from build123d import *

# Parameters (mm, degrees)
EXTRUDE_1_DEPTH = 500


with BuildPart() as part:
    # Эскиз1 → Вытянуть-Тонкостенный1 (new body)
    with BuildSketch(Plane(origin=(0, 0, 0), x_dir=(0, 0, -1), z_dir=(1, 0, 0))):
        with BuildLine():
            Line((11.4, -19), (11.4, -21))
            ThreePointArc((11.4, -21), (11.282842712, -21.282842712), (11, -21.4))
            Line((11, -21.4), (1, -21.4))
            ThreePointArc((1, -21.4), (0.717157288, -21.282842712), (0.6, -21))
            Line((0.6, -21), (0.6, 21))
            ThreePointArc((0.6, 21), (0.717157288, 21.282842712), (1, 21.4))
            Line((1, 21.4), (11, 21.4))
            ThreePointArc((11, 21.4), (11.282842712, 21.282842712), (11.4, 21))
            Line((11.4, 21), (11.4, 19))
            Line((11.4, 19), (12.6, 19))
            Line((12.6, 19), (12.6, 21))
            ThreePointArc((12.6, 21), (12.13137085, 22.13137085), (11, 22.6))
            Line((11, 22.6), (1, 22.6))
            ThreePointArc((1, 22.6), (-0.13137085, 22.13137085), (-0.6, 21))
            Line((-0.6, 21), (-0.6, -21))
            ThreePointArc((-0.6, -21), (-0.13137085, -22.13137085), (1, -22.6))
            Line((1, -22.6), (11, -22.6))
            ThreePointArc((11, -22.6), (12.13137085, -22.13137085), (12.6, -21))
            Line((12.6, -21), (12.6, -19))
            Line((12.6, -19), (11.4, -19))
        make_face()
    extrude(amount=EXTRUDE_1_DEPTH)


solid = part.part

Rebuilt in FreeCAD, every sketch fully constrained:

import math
import FreeCAD as App
import Part
import Sketcher

V = App.Vector
Q = App.Units.Quantity

doc = App.newDocument("Part")
params = doc.addObject("Spreadsheet::Sheet", "Params")
for row, (alias, value) in enumerate([
    ("sketch1_radius", "0.4 mm"),
    ("sketch1_radius2", "1.6 mm"),
    ("sketch1_width", "2 mm"),
    ("sketch1_width2", "42 mm"),
    ("sketch1_height", "10 mm"),
    ("pad1_length", "500 mm"),
], start=1):
    params.set(f"A{row}", alias)
    params.set(f"B{row}", "=" + value)
    params.setAlias(f"B{row}", alias)

body = doc.addObject("PartDesign::Body", "Body")

# Sketch on YZ plane
sketch1 = doc.addObject("Sketcher::SketchObject", "Sketch")
body.addObject(sketch1)
sketch1.AttachmentSupport = (doc.YZ_Plane, [""])
sketch1.MapMode = "FlatFace"
sketch1.addGeometry([
    Part.LineSegment(V(-19, -11.4, 0), V(-21, -11.4, 0)),  # 0
    Part.ArcOfCircle(Part.Circle(V(-21, -11, 0), V(0, 0, 1), 0.4), math.radians(-180), math.radians(-90)),  # 1
    Part.LineSegment(V(-21.4, -11, 0), V(-21.4, -1, 0)),  # 2
    Part.ArcOfCircle(Part.Circle(V(-21, -1, 0), V(0, 0, 1), 0.4), math.radians(90), math.radians(180)),  # 3
    Part.LineSegment(V(-21, -0.6, 0), V(21, -0.6, 0)),  # 4
    Part.ArcOfCircle(Part.Circle(V(21, -1, 0), V(0, 0, 1), 0.4), math.radians(0), math.radians(90)),  # 5
    Part.LineSegment(V(21.4, -1, 0), V(21.4, -11, 0)),  # 6
    Part.ArcOfCircle(Part.Circle(V(21, -11, 0), V(0, 0, 1), 0.4), math.radians(-90), math.radians(0)),  # 7
    Part.LineSegment(V(21, -11.4, 0), V(19, -11.4, 0)),  # 8
    Part.LineSegment(V(19, -11.4, 0), V(19, -12.6, 0)),  # 9
    Part.LineSegment(V(19, -12.6, 0), V(21, -12.6, 0)),  # 10
    Part.ArcOfCircle(Part.Circle(V(21, -11, 0), V(0, 0, 1), 1.6), math.radians(-90), math.radians(0)),  # 11
    Part.LineSegment(V(22.6, -11, 0), V(22.6, -1, 0)),  # 12
    Part.ArcOfCircle(Part.Circle(V(21, -1, 0), V(0, 0, 1), 1.6), math.radians(0), math.radians(90)),  # 13
    Part.LineSegment(V(21, 0.6, 0), V(-21, 0.6, 0)),  # 14
    Part.ArcOfCircle(Part.Circle(V(-21, -1, 0), V(0, 0, 1), 1.6), math.radians(90), math.radians(180)),  # 15
    Part.LineSegment(V(-22.6, -1, 0), V(-22.6, -11, 0)),  # 16
    Part.ArcOfCircle(Part.Circle(V(-21, -11, 0), V(0, 0, 1), 1.6), math.radians(180), math.radians(270)),  # 17
    Part.LineSegment(V(-21, -12.6, 0), V(-19, -12.6, 0)),  # 18
    Part.LineSegment(V(-19, -12.6, 0), V(-19, -11.4, 0)),  # 19
], False)
sketch1.addConstraint([
    Sketcher.Constraint("Tangent", 0, 2, 1, 2),
    Sketcher.Constraint("Tangent", 1, 1, 2, 1),
    Sketcher.Constraint("Tangent", 2, 2, 3, 2),
    Sketcher.Constraint("Tangent", 3, 1, 4, 1),
    Sketcher.Constraint("Tangent", 4, 2, 5, 2),
    Sketcher.Constraint("Tangent", 5, 1, 6, 1),
    Sketcher.Constraint("Tangent", 6, 2, 7, 2),
    Sketcher.Constraint("Tangent", 7, 1, 8, 1),
    Sketcher.Constraint("Coincident", 8, 2, 9, 1),
    Sketcher.Constraint("Coincident", 9, 2, 10, 1),
    Sketcher.Constraint("Tangent", 10, 2, 11, 1),
    Sketcher.Constraint("Tangent", 11, 2, 12, 1),
    Sketcher.Constraint("Tangent", 12, 2, 13, 1),
    Sketcher.Constraint("Tangent", 13, 2, 14, 1),
    Sketcher.Constraint("Tangent", 14, 2, 15, 1),
    Sketcher.Constraint("Tangent", 15, 2, 16, 1),
    Sketcher.Constraint("Tangent", 16, 2, 17, 1),
    Sketcher.Constraint("Tangent", 17, 2, 18, 1),
    Sketcher.Constraint("Coincident", 18, 2, 19, 1),
    Sketcher.Constraint("Coincident", 19, 2, 0, 1),
    Sketcher.Constraint("Horizontal", 0),
    Sketcher.Constraint("Vertical", 2),
    Sketcher.Constraint("Horizontal", 4),
    Sketcher.Constraint("Vertical", 6),
    Sketcher.Constraint("Horizontal", 8),
    Sketcher.Constraint("Vertical", 9),
    Sketcher.Constraint("Horizontal", 10),
    Sketcher.Constraint("Vertical", 12),
    Sketcher.Constraint("Horizontal", 14),
    Sketcher.Constraint("Vertical", 16),
    Sketcher.Constraint("Horizontal", 18),
    Sketcher.Constraint("Vertical", 19),
    Sketcher.Constraint("Coincident", 11, 3, 7, 3),
    Sketcher.Constraint("Coincident", 13, 3, 5, 3),
    Sketcher.Constraint("Coincident", 15, 3, 3, 3),
    Sketcher.Constraint("Coincident", 17, 3, 1, 3),
    Sketcher.Constraint("Equal", 1, 3),
    Sketcher.Constraint("Equal", 3, 5),
    Sketcher.Constraint("Equal", 5, 7),
    Sketcher.Constraint("Symmetric", 3, 1, 13, 2, -1, 1),
    Sketcher.Constraint("Symmetric", 9, 2, 18, 2, -2),
    Sketcher.Constraint("Radius", 1, Q("0.4 mm")),
    Sketcher.Constraint("Radius", 11, Q("1.6 mm")),
    Sketcher.Constraint("DistanceX", 0, 2, 0, 1, Q("2 mm")),
    Sketcher.Constraint("DistanceX", 4, 1, 4, 2, Q("42 mm")),
    Sketcher.Constraint("DistanceY", 2, 1, 2, 2, Q("10 mm")),
])
sketch1.setExpression("Constraints[41]", "Params.sketch1_radius")
sketch1.setExpression("Constraints[42]", "Params.sketch1_radius2")
sketch1.setExpression("Constraints[43]", "Params.sketch1_width")
sketch1.setExpression("Constraints[44]", "Params.sketch1_width2")
sketch1.setExpression("Constraints[45]", "Params.sketch1_height")
pad1 = doc.addObject("PartDesign::Pad", "Pad")
body.addObject(pad1)
pad1.Profile = sketch1
pad1.setExpression("Length", "Params.pad1_length")

doc.recompute()
